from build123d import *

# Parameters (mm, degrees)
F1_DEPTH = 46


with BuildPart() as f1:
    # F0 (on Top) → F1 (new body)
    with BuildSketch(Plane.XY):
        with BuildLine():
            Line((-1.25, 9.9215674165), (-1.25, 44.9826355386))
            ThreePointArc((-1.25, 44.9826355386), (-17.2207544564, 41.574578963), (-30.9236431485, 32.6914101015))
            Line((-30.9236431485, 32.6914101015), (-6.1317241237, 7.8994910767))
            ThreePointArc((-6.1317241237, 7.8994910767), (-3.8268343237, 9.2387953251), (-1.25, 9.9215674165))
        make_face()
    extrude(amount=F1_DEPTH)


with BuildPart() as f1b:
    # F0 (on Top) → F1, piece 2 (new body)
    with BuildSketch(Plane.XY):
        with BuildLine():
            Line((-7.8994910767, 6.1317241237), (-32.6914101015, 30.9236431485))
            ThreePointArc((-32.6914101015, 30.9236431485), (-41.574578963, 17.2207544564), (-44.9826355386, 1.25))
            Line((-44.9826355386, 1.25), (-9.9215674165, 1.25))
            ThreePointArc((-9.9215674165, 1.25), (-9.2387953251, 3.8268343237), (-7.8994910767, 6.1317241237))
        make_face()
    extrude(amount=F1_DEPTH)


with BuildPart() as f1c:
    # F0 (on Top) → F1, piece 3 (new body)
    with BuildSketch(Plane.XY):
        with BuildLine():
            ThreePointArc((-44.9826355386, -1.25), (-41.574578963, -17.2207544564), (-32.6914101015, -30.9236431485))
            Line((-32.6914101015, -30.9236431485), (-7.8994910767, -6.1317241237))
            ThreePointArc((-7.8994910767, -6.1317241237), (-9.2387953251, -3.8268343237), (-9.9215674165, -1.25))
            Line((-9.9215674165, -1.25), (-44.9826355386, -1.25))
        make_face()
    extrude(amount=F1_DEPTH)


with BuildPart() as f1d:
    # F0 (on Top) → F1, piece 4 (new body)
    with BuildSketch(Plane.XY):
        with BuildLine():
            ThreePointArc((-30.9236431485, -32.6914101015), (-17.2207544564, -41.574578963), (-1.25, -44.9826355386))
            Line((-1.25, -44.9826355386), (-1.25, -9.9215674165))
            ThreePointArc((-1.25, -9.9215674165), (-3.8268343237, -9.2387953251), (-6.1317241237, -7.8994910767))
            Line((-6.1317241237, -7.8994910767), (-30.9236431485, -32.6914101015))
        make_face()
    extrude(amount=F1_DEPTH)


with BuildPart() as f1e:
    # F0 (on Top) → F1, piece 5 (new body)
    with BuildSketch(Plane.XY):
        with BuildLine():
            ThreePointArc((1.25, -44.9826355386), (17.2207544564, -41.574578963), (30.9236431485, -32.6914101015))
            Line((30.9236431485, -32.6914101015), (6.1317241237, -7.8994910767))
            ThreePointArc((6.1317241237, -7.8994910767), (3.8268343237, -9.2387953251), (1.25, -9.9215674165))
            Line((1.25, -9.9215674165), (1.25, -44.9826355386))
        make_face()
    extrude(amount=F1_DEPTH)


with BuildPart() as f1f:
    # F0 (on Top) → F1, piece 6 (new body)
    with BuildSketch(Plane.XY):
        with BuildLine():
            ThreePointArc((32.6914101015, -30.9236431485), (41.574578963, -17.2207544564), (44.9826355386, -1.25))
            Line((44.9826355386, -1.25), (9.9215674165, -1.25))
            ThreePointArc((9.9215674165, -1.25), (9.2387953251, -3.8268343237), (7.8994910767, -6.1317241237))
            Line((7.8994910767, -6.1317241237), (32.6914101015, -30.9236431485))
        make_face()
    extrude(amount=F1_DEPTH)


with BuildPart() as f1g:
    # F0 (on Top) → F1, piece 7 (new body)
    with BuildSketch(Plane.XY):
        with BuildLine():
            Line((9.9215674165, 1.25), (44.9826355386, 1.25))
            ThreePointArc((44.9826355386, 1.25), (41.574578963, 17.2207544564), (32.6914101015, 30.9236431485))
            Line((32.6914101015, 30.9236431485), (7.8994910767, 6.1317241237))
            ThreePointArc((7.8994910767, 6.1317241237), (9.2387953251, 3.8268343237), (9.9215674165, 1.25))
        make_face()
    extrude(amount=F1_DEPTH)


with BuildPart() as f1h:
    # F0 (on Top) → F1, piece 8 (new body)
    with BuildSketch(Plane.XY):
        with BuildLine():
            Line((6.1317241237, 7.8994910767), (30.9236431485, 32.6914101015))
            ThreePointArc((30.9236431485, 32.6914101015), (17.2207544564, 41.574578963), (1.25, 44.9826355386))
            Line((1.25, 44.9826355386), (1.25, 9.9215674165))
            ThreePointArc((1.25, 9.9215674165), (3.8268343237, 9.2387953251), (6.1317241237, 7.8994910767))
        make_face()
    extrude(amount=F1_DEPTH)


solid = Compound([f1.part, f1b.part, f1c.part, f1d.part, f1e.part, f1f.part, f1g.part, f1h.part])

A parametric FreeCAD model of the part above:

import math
import FreeCAD as App
import Part
import Sketcher

V = App.Vector
Q = App.Units.Quantity

doc = App.newDocument("Part")
body = doc.addObject("PartDesign::Body", "Body")

# Sketch on XY plane
sketch1 = body.newObject("Sketcher::SketchObject", "Sketch")
sketch1.AttachmentSupport = (doc.getObject("XY_Plane"), [""])
sketch1.MapMode = "FlatFace"
sketch1.addGeometry(Part.LineSegment(V(-1, 10, 0), V(-1, 45, 0)), False)
sketch1.addGeometry(Part.ArcOfCircle(Part.Circle(V(0, 0, 0), V(0, 0, 1), 45), math.radians(92), math.radians(133)), False)
sketch1.addGeometry(Part.LineSegment(V(-31, 33, 0), V(-6, 8, 0)), False)
sketch1.addGeometry(Part.ArcOfCircle(Part.Circle(V(0, 0, 0), V(0, 0, 1), 10), math.radians(97), math.radians(128)), False)
sketch1.addConstraint(Sketcher.Constraint("Coincident", 0, 2, 1, 1))
sketch1.addConstraint(Sketcher.Constraint("Coincident", 1, 2, 2, 1))
sketch1.addConstraint(Sketcher.Constraint("Coincident", 2, 2, 3, 2))
sketch1.addConstraint(Sketcher.Constraint("Coincident", 3, 1, 0, 1))
sketch1.addConstraint(Sketcher.Constraint("Vertical", 0))
sketch1.addConstraint(Sketcher.Constraint("Coincident", 1, 3, -1, 1))
sketch1.addConstraint(Sketcher.Constraint("Coincident", 3, 3, -1, 1))
sketch1.addConstraint(Sketcher.Constraint("Radius", 1, 45.0))
sketch1.addConstraint(Sketcher.Constraint("Radius", 3, 10.0))
sketch1.addConstraint(Sketcher.Constraint("Angle", 2, Q("-45 deg")))
sketch1.addConstraint(Sketcher.Constraint("DistanceX", 0, 2, -1, 1, 1.25))
sketch1.addConstraint(Sketcher.Constraint("Distance", 2, 35.061068))
pad1 = body.newObject("PartDesign::Pad", "Pad")
pad1.Profile = sketch1
pad1.Length = 46
body2 = doc.addObject("PartDesign::Body", "Body001")

# Sketch on XY plane
sketch2 = body2.newObject("Sketcher::SketchObject", "Sketch001")
sketch2.AttachmentSupport = (doc.getObject("XY_Plane001"), [""])
sketch2.MapMode = "FlatFace"
sketch2.addGeometry(Part.LineSegment(V(-8, 6, 0), V(-33, 31, 0)), False)
sketch2.addGeometry(Part.ArcOfCircle(Part.Circle(V(0, 0, 0), V(0, 0, 1), 45), math.radians(137), math.radians(178)), False)
sketch2.addGeometry(Part.LineSegment(V(-45, 1, 0), V(-10, 1, 0)), False)
sketch2.addGeometry(Part.ArcOfCircle(Part.Circle(V(0, 0, 0), V(0, 0, 1), 10), math.radians(142), math.radians(173)), False)
sketch2.addConstraint(Sketcher.Constraint("Coincident", 0, 2, 1, 1))
sketch2.addConstraint(Sketcher.Constraint("Coincident", 1, 2, 2, 1))
sketch2.addConstraint(Sketcher.Constraint("Coincident", 2, 2, 3, 2))
sketch2.addConstraint(Sketcher.Constraint("Coincident", 3, 1, 0, 1))
sketch2.addConstraint(Sketcher.Constraint("Horizontal", 2))
sketch2.addConstraint(Sketcher.Constraint("Coincident", 1, 3, -1, 1))
sketch2.addConstraint(Sketcher.Constraint("Coincident", 3, 3, -1, 1))
sketch2.addConstraint(Sketcher.Constraint("Radius", 1, 45.0))
sketch2.addConstraint(Sketcher.Constraint("Radius", 3, 10.0))
sketch2.addConstraint(Sketcher.Constraint("Angle", 0, Q("135 deg")))
sketch2.addConstraint(Sketcher.Constraint("DistanceY", -1, 1, 1, 2, 1.25))
sketch2.addConstraint(Sketcher.Constraint("Distance", 0, 35.061068))
pad2 = body2.newObject("PartDesign::Pad", "Pad001")
pad2.Profile = sketch2
pad2.Length = 46
body3 = doc.addObject("PartDesign::Body", "Body002")

# Sketch on XY plane
sketch3 = body3.newObject("Sketcher::SketchObject", "Sketch002")
sketch3.AttachmentSupport = (doc.getObject("XY_Plane002"), [""])
sketch3.MapMode = "FlatFace"
sketch3.addGeometry(Part.ArcOfCircle(Part.Circle(V(0, 0, 0), V(0, 0, 1), 45), math.radians(-178), math.radians(-137)), False)
sketch3.addGeometry(Part.LineSegment(V(-33, -31, 0), V(-8, -6, 0)), False)
sketch3.addGeometry(Part.ArcOfCircle(Part.Circle(V(0, 0, 0), V(0, 0, 1), 10), math.radians(-173), math.radians(-142)), False)
sketch3.addGeometry(Part.LineSegment(V(-10, -1, 0), V(-45, -1, 0)), False)
sketch3.addConstraint(Sketcher.Constraint("Coincident", 0, 2, 1, 1))
sketch3.addConstraint(Sketcher.Constraint("Coincident", 1, 2, 2, 2))
sketch3.addConstraint(Sketcher.Constraint("Coincident", 2, 1, 3, 1))
sketch3.addConstraint(Sketcher.Constraint("Coincident", 3, 2, 0, 1))
sketch3.addConstraint(Sketcher.Constraint("Horizontal", 3))
sketch3.addConstraint(Sketcher.Constraint("Coincident", 0, 3, -1, 1))
sketch3.addConstraint(Sketcher.Constraint("Coincident", 2, 3, -1, 1))
sketch3.addConstraint(Sketcher.Constraint("Radius", 0, 45.0))
sketch3.addConstraint(Sketcher.Constraint("Radius", 2, 10.0))
sketch3.addConstraint(Sketcher.Constraint("Angle", 1, Q("45 deg")))
sketch3.addConstraint(Sketcher.Constraint("DistanceY", 2, 1, -1, 1, 1.25))
sketch3.addConstraint(Sketcher.Constraint("Distance", 1, 35.061068))
pad3 = body3.newObject("PartDesign::Pad", "Pad002")
pad3.Profile = sketch3
pad3.Length = 46
body4 = doc.addObject("PartDesign::Body", "Body003")

# Sketch on XY plane
sketch4 = body4.newObject("Sketcher::SketchObject", "Sketch003")
sketch4.AttachmentSupport = (doc.getObject("XY_Plane003"), [""])
sketch4.MapMode = "FlatFace"
sketch4.addGeometry(Part.ArcOfCircle(Part.Circle(V(0, 0, 0), V(0, 0, 1), 45), math.radians(-133), math.radians(-92)), False)
sketch4.addGeometry(Part.LineSegment(V(-1, -45, 0), V(-1, -10, 0)), False)
sketch4.addGeometry(Part.ArcOfCircle(Part.Circle(V(0, 0, 0), V(0, 0, 1), 10), math.radians(-128), math.radians(-97)), False)
sketch4.addGeometry(Part.LineSegment(V(-6, -8, 0), V(-31, -33, 0)), False)
sketch4.addConstraint(Sketcher.Constraint("Coincident", 0, 2, 1, 1))
sketch4.addConstraint(Sketcher.Constraint("Coincident", 1, 2, 2, 2))
sketch4.addConstraint(Sketcher.Constraint("Coincident", 2, 1, 3, 1))
sketch4.addConstraint(Sketcher.Constraint("Coincident", 3, 2, 0, 1))
sketch4.addConstraint(Sketcher.Constraint("Vertical", 1))
sketch4.addConstraint(Sketcher.Constraint("Coincident", 0, 3, -1, 1))
sketch4.addConstraint(Sketcher.Constraint("Coincident", 2, 3, -1, 1))
sketch4.addConstraint(Sketcher.Constraint("Radius", 0, 45.0))
sketch4.addConstraint(Sketcher.Constraint("Radius", 2, 10.0))
sketch4.addConstraint(Sketcher.Constraint("Angle", 3, Q("-135 deg")))
sketch4.addConstraint(Sketcher.Constraint("DistanceX", 0, 2, -1, 1, 1.25))
sketch4.addConstraint(Sketcher.Constraint("Distance", 3, 35.061068))
pad4 = body4.newObject("PartDesign::Pad", "Pad003")
pad4.Profile = sketch4
pad4.Length = 46
body5 = doc.addObject("PartDesign::Body", "Body004")

# Sketch on XY plane
sketch5 = body5.newObject("Sketcher::SketchObject", "Sketch004")
sketch5.AttachmentSupport = (doc.getObject("XY_Plane004"), [""])
sketch5.MapMode = "FlatFace"
sketch5.addGeometry(Part.ArcOfCircle(Part.Circle(V(0, 0, 0), V(0, 0, 1), 45), math.radians(-88), math.radians(-47)), False)
sketch5.addGeometry(Part.LineSegment(V(31, -33, 0), V(6, -8, 0)), False)
sketch5.addGeometry(Part.ArcOfCircle(Part.Circle(V(0, 0, 0), V(0, 0, 1), 10), math.radians(-83), math.radians(-52)), False)
sketch5.addGeometry(Part.LineSegment(V(1, -10, 0), V(1, -45, 0)), False)
sketch5.addConstraint(Sketcher.Constraint("Coincident", 0, 2, 1, 1))
sketch5.addConstraint(Sketcher.Constraint("Coincident", 1, 2, 2, 2))
sketch5.addConstraint(Sketcher.Constraint("Coincident", 2, 1, 3, 1))
sketch5.addConstraint(Sketcher.Constraint("Coincident", 3, 2, 0, 1))
sketch5.addConstraint(Sketcher.Constraint("Vertical", 3))
sketch5.addConstraint(Sketcher.Constraint("Coincident", 0, 3, -1, 1))
sketch5.addConstraint(Sketcher.Constraint("Coincident", 2, 3, -1, 1))
sketch5.addConstraint(Sketcher.Constraint("Radius", 0, 45.0))
sketch5.addConstraint(Sketcher.Constraint("Radius", 2, 10.0))
sketch5.addConstraint(Sketcher.Constraint("Angle", 1, Q("135 deg")))
sketch5.addConstraint(Sketcher.Constraint("DistanceX", -1, 1, 2, 1, 1.25))
sketch5.addConstraint(Sketcher.Constraint("Distance", 1, 35.061068))
pad5 = body5.newObject("PartDesign::Pad", "Pad004")
pad5.Profile = sketch5
pad5.Length = 46
body6 = doc.addObject("PartDesign::Body", "Body005")

# Sketch on XY plane
sketch6 = body6.newObject("Sketcher::SketchObject", "Sketch005")
sketch6.AttachmentSupport = (doc.getObject("XY_Plane005"), [""])
sketch6.MapMode = "FlatFace"
sketch6.addGeometry(Part.ArcOfCircle(Part.Circle(V(0, 0, 0), V(0, 0, 1), 45), math.radians(-43), math.radians(-2)), False)
sketch6.addGeometry(Part.LineSegment(V(45, -1, 0), V(10, -1, 0)), False)
sketch6.addGeometry(Part.ArcOfCircle(Part.Circle(V(0, 0, 0), V(0, 0, 1), 10), math.radians(-38), math.radians(-7)), False)
sketch6.addGeometry(Part.LineSegment(V(8, -6, 0), V(33, -31, 0)), False)
sketch6.addConstraint(Sketcher.Constraint("Coincident", 0, 2, 1, 1))
sketch6.addConstraint(Sketcher.Constraint("Coincident", 1, 2, 2, 2))
sketch6.addConstraint(Sketcher.Constraint("Coincident", 2, 1, 3, 1))
sketch6.addConstraint(Sketcher.Constraint("Coincident", 3, 2, 0, 1))
sketch6.addConstraint(Sketcher.Constraint("Horizontal", 1))
sketch6.addConstraint(Sketcher.Constraint("Coincident", 0, 3, -1, 1))
sketch6.addConstraint(Sketcher.Constraint("Coincident", 2, 3, -1, 1))
sketch6.addConstraint(Sketcher.Constraint("Radius", 0, 45.0))
sketch6.addConstraint(Sketcher.Constraint("Radius", 2, 10.0))
sketch6.addConstraint(Sketcher.Constraint("Angle", 3, Q("-45 deg")))
sketch6.addConstraint(Sketcher.Constraint("DistanceY", 0, 2, -1, 1, 1.25))
sketch6.addConstraint(Sketcher.Constraint("Distance", 3, 35.061068))
pad6 = body6.newObject("PartDesign::Pad", "Pad005")
pad6.Profile = sketch6
pad6.Length = 46
body7 = doc.addObject("PartDesign::Body", "Body006")

# Sketch on XY plane
sketch7 = body7.newObject("Sketcher::SketchObject", "Sketch006")
sketch7.AttachmentSupport = (doc.getObject("XY_Plane006"), [""])
sketch7.MapMode = "FlatFace"
sketch7.addGeometry(Part.LineSegment(V(10, 1, 0), V(45, 1, 0)), False)
sketch7.addGeometry(Part.ArcOfCircle(Part.Circle(V(0, 0, 0), V(0, 0, 1), 45), math.radians(2), math.radians(43)), False)
sketch7.addGeometry(Part.LineSegment(V(33, 31, 0), V(8, 6, 0)), False)
sketch7.addGeometry(Part.ArcOfCircle(Part.Circle(V(0, 0, 0), V(0, 0, 1), 10), math.radians(7), math.radians(38)), False)
sketch7.addConstraint(Sketcher.Constraint("Coincident", 0, 2, 1, 1))
sketch7.addConstraint(Sketcher.Constraint("Coincident", 1, 2, 2, 1))
sketch7.addConstraint(Sketcher.Constraint("Coincident", 2, 2, 3, 2))
sketch7.addConstraint(Sketcher.Constraint("Coincident", 3, 1, 0, 1))
sketch7.addConstraint(Sketcher.Constraint("Horizontal", 0))
sketch7.addConstraint(Sketcher.Constraint("Coincident", 1, 3, -1, 1))
sketch7.addConstraint(Sketcher.Constraint("Coincident", 3, 3, -1, 1))
sketch7.addConstraint(Sketcher.Constraint("Radius", 1, 45.0))
sketch7.addConstraint(Sketcher.Constraint("Radius", 3, 10.0))
sketch7.addConstraint(Sketcher.Constraint("Angle", 2, Q("-135 deg")))
sketch7.addConstraint(Sketcher.Constraint("DistanceY", -1, 1, 0, 2, 1.25))
sketch7.addConstraint(Sketcher.Constraint("Distance", 2, 35.061068))
pad7 = body7.newObject("PartDesign::Pad", "Pad006")
pad7.Profile = sketch7
pad7.Length = 46
body8 = doc.addObject("PartDesign::Body", "Body007")

# Sketch on XY plane
sketch8 = body8.newObject("Sketcher::SketchObject", "Sketch007")
sketch8.AttachmentSupport = (doc.getObject("XY_Plane007"), [""])
sketch8.MapMode = "FlatFace"
sketch8.addGeometry(Part.LineSegment(V(6, 8, 0), V(31, 33, 0)), False)
sketch8.addGeometry(Part.ArcOfCircle(Part.Circle(V(0, 0, 0), V(0, 0, 1), 45), math.radians(47), math.radians(88)), False)
sketch8.addGeometry(Part.LineSegment(V(1, 45, 0), V(1, 10, 0)), False)
sketch8.addGeometry(Part.ArcOfCircle(Part.Circle(V(0, 0, 0), V(0, 0, 1), 10), math.radians(52), math.radians(83)), False)
sketch8.addConstraint(Sketcher.Constraint("Coincident", 0, 2, 1, 1))
sketch8.addConstraint(Sketcher.Constraint("Coincident", 1, 2, 2, 1))
sketch8.addConstraint(Sketcher.Constraint("Coincident", 2, 2, 3, 2))
sketch8.addConstraint(Sketcher.Constraint("Coincident", 3, 1, 0, 1))
sketch8.addConstraint(Sketcher.Constraint("Vertical", 2))
sketch8.addConstraint(Sketcher.Constraint("Coincident", 1, 3, -1, 1))
sketch8.addConstraint(Sketcher.Constraint("Coincident", 3, 3, -1, 1))
sketch8.addConstraint(Sketcher.Constraint("Radius", 1, 45.0))
sketch8.addConstraint(Sketcher.Constraint("Radius", 3, 10.0))
sketch8.addConstraint(Sketcher.Constraint("Angle", 0, Q("45 deg")))
sketch8.addConstraint(Sketcher.Constraint("DistanceX", -1, 1, 1, 2, 1.25))
sketch8.addConstraint(Sketcher.Constraint("Distance", 0, 35.061068))
pad8 = body8.newObject("PartDesign::Pad", "Pad007")
pad8.Profile = sketch8
pad8.Length = 46

doc.recompute()
